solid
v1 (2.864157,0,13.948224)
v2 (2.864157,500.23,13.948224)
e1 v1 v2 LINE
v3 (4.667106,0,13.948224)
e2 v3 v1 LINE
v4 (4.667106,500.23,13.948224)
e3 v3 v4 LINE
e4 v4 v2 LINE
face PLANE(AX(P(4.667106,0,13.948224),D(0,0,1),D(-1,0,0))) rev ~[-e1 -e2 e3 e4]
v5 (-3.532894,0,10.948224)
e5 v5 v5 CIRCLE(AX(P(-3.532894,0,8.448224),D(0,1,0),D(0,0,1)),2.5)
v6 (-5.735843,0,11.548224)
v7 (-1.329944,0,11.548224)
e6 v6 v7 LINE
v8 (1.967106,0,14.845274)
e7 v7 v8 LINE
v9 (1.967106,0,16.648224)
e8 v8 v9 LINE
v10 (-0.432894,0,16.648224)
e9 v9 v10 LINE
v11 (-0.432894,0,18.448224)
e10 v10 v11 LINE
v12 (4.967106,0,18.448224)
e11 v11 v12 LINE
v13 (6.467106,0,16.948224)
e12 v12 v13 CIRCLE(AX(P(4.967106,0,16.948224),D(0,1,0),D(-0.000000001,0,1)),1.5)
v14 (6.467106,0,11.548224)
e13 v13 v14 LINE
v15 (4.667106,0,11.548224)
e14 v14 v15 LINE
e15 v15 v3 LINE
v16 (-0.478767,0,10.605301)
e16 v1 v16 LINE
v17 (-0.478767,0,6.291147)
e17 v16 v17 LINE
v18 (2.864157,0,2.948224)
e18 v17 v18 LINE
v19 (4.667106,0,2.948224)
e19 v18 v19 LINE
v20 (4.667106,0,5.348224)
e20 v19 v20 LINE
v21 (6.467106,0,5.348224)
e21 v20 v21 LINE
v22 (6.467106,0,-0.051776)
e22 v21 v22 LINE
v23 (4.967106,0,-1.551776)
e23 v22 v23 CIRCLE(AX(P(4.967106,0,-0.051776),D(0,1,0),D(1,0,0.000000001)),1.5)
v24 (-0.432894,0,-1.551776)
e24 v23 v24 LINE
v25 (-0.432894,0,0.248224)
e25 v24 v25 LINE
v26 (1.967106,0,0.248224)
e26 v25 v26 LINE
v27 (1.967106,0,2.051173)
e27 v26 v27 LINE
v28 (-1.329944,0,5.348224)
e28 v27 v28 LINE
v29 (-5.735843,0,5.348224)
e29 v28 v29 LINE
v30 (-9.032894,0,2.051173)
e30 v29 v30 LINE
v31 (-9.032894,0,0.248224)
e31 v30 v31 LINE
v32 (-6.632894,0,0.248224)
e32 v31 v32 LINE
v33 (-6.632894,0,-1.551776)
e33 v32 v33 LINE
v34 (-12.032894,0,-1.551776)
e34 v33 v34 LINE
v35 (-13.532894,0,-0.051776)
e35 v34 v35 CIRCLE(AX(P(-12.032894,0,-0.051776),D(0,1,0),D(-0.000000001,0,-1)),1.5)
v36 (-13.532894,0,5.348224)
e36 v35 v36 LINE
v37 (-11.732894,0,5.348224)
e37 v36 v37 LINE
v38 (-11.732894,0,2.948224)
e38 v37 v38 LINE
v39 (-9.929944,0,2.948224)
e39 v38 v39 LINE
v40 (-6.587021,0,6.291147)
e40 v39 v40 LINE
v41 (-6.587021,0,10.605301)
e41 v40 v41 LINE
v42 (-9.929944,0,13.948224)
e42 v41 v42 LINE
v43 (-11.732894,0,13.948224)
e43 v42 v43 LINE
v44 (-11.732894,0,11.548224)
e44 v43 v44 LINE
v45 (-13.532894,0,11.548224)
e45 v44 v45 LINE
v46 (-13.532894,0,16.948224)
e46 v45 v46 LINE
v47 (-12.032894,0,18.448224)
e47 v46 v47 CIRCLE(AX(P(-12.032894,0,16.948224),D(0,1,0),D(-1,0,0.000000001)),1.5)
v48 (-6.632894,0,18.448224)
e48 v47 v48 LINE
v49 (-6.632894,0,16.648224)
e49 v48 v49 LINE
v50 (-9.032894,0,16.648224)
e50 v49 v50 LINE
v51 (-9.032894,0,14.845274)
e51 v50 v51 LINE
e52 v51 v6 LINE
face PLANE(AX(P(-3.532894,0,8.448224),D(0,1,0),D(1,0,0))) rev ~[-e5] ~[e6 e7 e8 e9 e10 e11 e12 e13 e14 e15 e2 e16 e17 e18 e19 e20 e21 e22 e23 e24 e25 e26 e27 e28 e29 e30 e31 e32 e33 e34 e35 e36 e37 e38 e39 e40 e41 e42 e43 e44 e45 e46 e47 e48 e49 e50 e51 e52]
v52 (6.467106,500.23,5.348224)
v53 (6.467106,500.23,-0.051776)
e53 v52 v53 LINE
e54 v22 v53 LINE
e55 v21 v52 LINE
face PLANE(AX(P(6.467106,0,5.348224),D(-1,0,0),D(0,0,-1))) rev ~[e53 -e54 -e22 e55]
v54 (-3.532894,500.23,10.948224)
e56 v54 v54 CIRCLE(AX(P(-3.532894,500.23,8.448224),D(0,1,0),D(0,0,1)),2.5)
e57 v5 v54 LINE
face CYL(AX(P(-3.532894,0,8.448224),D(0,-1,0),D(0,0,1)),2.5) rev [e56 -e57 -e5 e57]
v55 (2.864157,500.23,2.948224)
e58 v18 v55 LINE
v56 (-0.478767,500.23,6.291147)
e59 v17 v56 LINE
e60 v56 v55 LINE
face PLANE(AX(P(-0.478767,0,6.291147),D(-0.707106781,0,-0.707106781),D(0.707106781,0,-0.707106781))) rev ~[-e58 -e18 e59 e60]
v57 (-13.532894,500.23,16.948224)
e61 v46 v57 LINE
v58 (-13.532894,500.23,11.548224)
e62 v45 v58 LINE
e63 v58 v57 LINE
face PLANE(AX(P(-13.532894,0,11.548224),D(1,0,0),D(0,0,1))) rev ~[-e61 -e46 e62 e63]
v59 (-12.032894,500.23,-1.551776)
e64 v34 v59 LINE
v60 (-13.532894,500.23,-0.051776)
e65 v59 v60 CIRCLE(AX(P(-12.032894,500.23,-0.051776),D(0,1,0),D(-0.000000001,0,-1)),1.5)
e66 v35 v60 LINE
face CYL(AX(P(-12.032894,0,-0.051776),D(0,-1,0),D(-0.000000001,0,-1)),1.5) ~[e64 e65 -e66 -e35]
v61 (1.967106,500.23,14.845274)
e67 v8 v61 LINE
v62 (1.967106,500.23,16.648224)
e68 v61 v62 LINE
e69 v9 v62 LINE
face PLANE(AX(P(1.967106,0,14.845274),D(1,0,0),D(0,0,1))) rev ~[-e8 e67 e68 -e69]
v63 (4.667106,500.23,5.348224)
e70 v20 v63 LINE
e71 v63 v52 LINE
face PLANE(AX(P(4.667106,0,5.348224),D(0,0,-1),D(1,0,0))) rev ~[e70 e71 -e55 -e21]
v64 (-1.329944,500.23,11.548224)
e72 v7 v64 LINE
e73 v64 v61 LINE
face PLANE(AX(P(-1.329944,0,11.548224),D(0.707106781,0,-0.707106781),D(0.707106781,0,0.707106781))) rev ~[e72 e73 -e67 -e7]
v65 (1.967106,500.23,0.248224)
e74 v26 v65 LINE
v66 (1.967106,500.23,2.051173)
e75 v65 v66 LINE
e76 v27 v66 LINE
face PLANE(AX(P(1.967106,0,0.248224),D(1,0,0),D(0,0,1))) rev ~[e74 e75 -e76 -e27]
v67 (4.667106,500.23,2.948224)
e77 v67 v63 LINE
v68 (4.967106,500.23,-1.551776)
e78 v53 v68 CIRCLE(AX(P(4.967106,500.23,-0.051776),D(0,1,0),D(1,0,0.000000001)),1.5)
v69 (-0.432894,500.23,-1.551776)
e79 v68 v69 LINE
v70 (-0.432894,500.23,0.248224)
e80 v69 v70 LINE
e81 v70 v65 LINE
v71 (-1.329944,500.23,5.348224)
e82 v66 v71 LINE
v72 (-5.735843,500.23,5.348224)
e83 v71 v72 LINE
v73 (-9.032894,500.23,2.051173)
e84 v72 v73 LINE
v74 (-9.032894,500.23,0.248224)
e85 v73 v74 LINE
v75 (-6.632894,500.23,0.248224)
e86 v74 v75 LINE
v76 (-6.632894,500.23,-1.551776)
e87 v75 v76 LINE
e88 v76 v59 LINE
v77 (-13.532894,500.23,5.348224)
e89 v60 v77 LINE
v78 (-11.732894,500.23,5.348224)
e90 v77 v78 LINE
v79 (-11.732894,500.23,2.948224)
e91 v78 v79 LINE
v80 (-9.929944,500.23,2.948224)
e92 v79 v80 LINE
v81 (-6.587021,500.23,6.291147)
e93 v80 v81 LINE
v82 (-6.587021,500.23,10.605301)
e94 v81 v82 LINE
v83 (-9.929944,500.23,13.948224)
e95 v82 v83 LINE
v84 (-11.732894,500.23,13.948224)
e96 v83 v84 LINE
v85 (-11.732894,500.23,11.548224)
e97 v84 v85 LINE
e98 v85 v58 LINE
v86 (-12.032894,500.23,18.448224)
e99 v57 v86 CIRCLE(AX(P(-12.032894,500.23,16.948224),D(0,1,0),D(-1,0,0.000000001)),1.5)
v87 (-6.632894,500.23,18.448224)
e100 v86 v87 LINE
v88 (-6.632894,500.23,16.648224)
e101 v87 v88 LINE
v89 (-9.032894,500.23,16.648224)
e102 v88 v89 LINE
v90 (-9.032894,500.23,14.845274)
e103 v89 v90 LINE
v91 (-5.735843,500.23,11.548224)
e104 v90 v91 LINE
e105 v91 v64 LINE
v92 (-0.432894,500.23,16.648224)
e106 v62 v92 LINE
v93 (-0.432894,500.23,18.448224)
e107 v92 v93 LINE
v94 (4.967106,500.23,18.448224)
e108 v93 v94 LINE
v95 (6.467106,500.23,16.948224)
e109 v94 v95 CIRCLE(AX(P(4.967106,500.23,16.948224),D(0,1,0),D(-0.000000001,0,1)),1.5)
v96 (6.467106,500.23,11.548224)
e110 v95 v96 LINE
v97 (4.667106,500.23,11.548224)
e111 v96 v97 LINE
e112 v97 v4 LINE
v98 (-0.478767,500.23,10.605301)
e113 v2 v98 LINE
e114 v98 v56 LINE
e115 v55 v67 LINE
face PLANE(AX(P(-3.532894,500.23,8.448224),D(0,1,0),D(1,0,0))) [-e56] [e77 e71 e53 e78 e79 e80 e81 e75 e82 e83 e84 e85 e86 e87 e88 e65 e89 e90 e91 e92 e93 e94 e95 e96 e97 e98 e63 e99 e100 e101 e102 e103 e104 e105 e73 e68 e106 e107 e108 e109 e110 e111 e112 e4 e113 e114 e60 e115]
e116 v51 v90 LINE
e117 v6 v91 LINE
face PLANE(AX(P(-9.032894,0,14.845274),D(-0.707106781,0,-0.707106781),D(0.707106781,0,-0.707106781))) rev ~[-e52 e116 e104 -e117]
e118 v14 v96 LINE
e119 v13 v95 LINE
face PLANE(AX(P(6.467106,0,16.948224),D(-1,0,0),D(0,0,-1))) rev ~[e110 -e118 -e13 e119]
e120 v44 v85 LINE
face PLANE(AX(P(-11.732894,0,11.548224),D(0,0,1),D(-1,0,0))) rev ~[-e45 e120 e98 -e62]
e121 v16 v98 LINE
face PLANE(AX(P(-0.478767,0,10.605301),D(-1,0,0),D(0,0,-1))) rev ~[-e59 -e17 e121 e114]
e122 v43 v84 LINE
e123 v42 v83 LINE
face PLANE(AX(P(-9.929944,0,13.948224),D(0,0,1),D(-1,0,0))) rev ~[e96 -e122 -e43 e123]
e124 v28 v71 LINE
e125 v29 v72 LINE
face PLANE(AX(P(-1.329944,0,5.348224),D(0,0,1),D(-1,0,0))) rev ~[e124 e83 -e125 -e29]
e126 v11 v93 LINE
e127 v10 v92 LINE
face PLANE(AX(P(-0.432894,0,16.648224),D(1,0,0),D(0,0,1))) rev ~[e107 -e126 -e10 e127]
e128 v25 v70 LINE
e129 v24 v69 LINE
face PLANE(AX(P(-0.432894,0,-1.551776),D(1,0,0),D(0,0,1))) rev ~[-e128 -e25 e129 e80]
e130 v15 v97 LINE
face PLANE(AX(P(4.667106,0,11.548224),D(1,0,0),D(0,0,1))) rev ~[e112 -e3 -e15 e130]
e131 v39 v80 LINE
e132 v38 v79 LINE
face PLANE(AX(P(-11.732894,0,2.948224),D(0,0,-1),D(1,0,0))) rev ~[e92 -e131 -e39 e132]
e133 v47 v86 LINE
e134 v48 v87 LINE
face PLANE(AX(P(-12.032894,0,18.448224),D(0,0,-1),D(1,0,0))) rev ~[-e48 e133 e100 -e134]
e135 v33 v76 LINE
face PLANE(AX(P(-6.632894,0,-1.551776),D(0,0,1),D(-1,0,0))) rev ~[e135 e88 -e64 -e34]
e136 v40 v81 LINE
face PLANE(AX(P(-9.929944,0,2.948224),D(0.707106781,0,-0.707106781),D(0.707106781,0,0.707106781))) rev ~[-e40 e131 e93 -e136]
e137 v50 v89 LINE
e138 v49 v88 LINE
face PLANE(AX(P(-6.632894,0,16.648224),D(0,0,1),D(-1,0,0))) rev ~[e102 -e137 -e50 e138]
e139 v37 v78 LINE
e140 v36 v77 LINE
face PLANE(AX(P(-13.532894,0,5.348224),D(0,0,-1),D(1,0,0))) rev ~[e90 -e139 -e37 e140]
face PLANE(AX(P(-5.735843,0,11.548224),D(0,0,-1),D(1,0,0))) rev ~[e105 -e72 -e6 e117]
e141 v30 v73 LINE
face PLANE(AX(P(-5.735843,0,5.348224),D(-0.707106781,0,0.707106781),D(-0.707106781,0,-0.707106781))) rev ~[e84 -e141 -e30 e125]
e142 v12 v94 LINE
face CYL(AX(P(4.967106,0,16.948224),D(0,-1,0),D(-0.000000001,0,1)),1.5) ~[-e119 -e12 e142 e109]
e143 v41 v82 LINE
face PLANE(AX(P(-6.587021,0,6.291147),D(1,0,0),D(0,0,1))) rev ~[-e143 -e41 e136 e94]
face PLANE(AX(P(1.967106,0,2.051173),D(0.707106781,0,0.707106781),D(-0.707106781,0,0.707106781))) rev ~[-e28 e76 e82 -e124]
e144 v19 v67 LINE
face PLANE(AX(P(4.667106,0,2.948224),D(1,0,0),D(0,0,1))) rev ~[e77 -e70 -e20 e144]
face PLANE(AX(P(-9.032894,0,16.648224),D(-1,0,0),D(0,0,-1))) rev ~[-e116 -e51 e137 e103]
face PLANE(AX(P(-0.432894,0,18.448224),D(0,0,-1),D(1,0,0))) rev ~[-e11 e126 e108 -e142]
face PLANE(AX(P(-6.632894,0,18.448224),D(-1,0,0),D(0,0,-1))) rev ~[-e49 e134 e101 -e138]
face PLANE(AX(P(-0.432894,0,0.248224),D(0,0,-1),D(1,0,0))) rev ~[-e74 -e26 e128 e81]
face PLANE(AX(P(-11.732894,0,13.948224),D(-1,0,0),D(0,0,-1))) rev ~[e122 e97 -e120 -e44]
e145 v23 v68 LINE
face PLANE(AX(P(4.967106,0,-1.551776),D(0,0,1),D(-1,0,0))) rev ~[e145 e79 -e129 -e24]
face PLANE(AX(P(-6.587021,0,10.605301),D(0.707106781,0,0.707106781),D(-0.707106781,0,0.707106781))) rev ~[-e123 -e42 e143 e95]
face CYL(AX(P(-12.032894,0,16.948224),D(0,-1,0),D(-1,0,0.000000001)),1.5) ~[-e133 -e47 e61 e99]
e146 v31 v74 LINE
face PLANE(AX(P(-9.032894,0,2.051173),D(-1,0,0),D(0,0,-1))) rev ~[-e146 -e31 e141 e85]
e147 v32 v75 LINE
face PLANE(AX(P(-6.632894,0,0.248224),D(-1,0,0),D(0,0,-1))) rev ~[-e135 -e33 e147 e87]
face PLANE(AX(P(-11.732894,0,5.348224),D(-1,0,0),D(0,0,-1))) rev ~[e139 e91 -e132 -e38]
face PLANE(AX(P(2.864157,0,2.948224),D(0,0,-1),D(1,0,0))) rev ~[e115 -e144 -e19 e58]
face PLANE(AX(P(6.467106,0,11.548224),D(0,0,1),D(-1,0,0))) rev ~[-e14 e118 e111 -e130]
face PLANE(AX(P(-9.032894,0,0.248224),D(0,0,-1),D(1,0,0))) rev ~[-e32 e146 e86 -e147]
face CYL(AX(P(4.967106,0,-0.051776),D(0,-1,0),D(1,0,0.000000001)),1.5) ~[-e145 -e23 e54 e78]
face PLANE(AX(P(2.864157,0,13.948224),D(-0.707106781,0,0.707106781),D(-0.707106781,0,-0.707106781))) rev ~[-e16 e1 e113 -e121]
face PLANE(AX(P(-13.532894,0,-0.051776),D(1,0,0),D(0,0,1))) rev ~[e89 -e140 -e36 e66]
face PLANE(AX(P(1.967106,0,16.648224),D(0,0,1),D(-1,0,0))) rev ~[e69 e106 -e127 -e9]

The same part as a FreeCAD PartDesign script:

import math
import FreeCAD as App
import Part
import Sketcher
from FreeCAD import Vector
Q = App.Units.Quantity

doc = App.newDocument("Part")
body = doc.addObject("PartDesign::Body", "Body")

# Sketch on XZ plane
sketch1 = body.newObject("Sketcher::SketchObject", "Sketch")
sketch1.AttachmentSupport = (doc.getObject("XZ_Plane"), [""])
sketch1.MapMode = "FlatFace"
sketch1.addGeometry([
    Part.LineSegment(Vector(-11.732894, 11.548224, 0), Vector(-13.532894, 11.548224, 0)),  # 0
    Part.LineSegment(Vector(-13.532894, 11.548224, 0), Vector(-13.532894, 16.948224, 0)),  # 1
    Part.ArcOfCircle(Part.Circle(Vector(-12.032894, 16.948224, 0), Vector(0, 0, 1), 1.5), math.radians(90), math.radians(180)),  # 2
    Part.LineSegment(Vector(-12.032894, 18.448224, 0), Vector(-6.632894, 18.448224, 0)),  # 3
    Part.LineSegment(Vector(-6.632894, 18.448224, 0), Vector(-6.632894, 16.648224, 0)),  # 4
    Part.LineSegment(Vector(-6.632894, 16.648224, 0), Vector(-9.032894, 16.648224, 0)),  # 5
    Part.LineSegment(Vector(-9.032894, 16.648224, 0), Vector(-9.032894, 14.845274, 0)),  # 6
    Part.LineSegment(Vector(-9.032894, 14.845274, 0), Vector(-5.735843, 11.548224, 0)),  # 7
    Part.LineSegment(Vector(-5.735843, 11.548224, 0), Vector(-1.329944, 11.548224, 0)),  # 8
    Part.LineSegment(Vector(-1.329944, 11.548224, 0), Vector(1.967106, 14.845274, 0)),  # 9
    Part.LineSegment(Vector(1.967106, 14.845274, 0), Vector(1.967106, 16.648224, 0)),  # 10
    Part.LineSegment(Vector(1.967106, 16.648224, 0), Vector(-0.432894, 16.648224, 0)),  # 11
    Part.LineSegment(Vector(-0.432894, 16.648224, 0), Vector(-0.432894, 18.448224, 0)),  # 12
    Part.LineSegment(Vector(-0.432894, 18.448224, 0), Vector(4.967106, 18.448224, 0)),  # 13
    Part.ArcOfCircle(Part.Circle(Vector(4.967106, 16.948224, 0), Vector(0, 0, 1), 1.5), math.radians(0), math.radians(90)),  # 14
    Part.LineSegment(Vector(6.467106, 16.948224, 0), Vector(6.467106, 11.548224, 0)),  # 15
    Part.LineSegment(Vector(6.467106, 11.548224, 0), Vector(4.667106, 11.548224, 0)),  # 16
    Part.LineSegment(Vector(4.667106, 11.548224, 0), Vector(4.667106, 13.948224, 0)),  # 17
    Part.LineSegment(Vector(4.667106, 13.948224, 0), Vector(2.864157, 13.948224, 0)),  # 18
    Part.LineSegment(Vector(2.864157, 13.948224, 0), Vector(-0.478767, 10.605301, 0)),  # 19
    Part.LineSegment(Vector(-0.478767, 10.605301, 0), Vector(-0.478767, 6.291147, 0)),  # 20
    Part.LineSegment(Vector(-0.478767, 6.291147, 0), Vector(2.864157, 2.948224, 0)),  # 21
    Part.LineSegment(Vector(2.864157, 2.948224, 0), Vector(4.667106, 2.948224, 0)),  # 22
    Part.LineSegment(Vector(4.667106, 2.948224, 0), Vector(4.667106, 5.348224, 0)),  # 23
    Part.LineSegment(Vector(4.667106, 5.348224, 0), Vector(6.467106, 5.348224, 0)),  # 24
    Part.LineSegment(Vector(6.467106, 5.348224, 0), Vector(6.467106, -0.051776, 0)),  # 25
    Part.ArcOfCircle(Part.Circle(Vector(4.967106, -0.051776, 0), Vector(0, 0, 1), 1.5), math.radians(-90), math.radians(0)),  # 26
    Part.LineSegment(Vector(4.967106, -1.551776, 0), Vector(-0.432894, -1.551776, 0)),  # 27
    Part.LineSegment(Vector(-0.432894, -1.551776, 0), Vector(-0.432894, 0.248224, 0)),  # 28
    Part.LineSegment(Vector(-0.432894, 0.248224, 0), Vector(1.967106, 0.248224, 0)),  # 29
    Part.LineSegment(Vector(1.967106, 0.248224, 0), Vector(1.967106, 2.051173, 0)),  # 30
    Part.LineSegment(Vector(1.967106, 2.051173, 0), Vector(-1.329944, 5.348224, 0)),  # 31
    Part.LineSegment(Vector(-1.329944, 5.348224, 0), Vector(-5.735843, 5.348224, 0)),  # 32
    Part.LineSegment(Vector(-5.735843, 5.348224, 0), Vector(-9.032894, 2.051173, 0)),  # 33
    Part.LineSegment(Vector(-9.032894, 2.051173, 0), Vector(-9.032894, 0.248224, 0)),  # 34
    Part.LineSegment(Vector(-9.032894, 0.248224, 0), Vector(-6.632894, 0.248224, 0)),  # 35
    Part.LineSegment(Vector(-6.632894, 0.248224, 0), Vector(-6.632894, -1.551776, 0)),  # 36
    Part.LineSegment(Vector(-6.632894, -1.551776, 0), Vector(-12.032894, -1.551776, 0)),  # 37
    Part.ArcOfCircle(Part.Circle(Vector(-12.032894, -0.051776, 0), Vector(0, 0, 1), 1.5), math.radians(-180), math.radians(-90)),  # 38
    Part.LineSegment(Vector(-13.532894, -0.051776, 0), Vector(-13.532894, 5.348224, 0)),  # 39
    Part.LineSegment(Vector(-13.532894, 5.348224, 0), Vector(-11.732894, 5.348224, 0)),  # 40
    Part.LineSegment(Vector(-11.732894, 5.348224, 0), Vector(-11.732894, 2.948224, 0)),  # 41
    Part.LineSegment(Vector(-11.732894, 2.948224, 0), Vector(-9.929944, 2.948224, 0)),  # 42
    Part.LineSegment(Vector(-9.929944, 2.948224, 0), Vector(-6.587021, 6.291147, 0)),  # 43
    Part.LineSegment(Vector(-6.587021, 6.291147, 0), Vector(-6.587021, 10.605301, 0)),  # 44
    Part.LineSegment(Vector(-6.587021, 10.605301, 0), Vector(-9.929944, 13.948224, 0)),  # 45
    Part.LineSegment(Vector(-9.929944, 13.948224, 0), Vector(-11.732894, 13.948224, 0)),  # 46
    Part.LineSegment(Vector(-11.732894, 13.948224, 0), Vector(-11.732894, 11.548224, 0)),  # 47
    Part.Circle(Vector(-3.532894, 8.448224, 0), Vector(0, 0, 1), 2.5),  # 48
], False)
sketch1.addConstraint([
    Sketcher.Constraint("Coincident", 0, 2, 1, 1),
    Sketcher.Constraint("Tangent", 1, 2, 2, 2),
    Sketcher.Constraint("Tangent", 2, 1, 3, 1),
    Sketcher.Constraint("Coincident", 3, 2, 4, 1),
    Sketcher.Constraint("Coincident", 4, 2, 5, 1),
    Sketcher.Constraint("Coincident", 5, 2, 6, 1),
    Sketcher.Constraint("Coincident", 6, 2, 7, 1),
    Sketcher.Constraint("Coincident", 7, 2, 8, 1),
    Sketcher.Constraint("Coincident", 8, 2, 9, 1),
    Sketcher.Constraint("Coincident", 9, 2, 10, 1),
    Sketcher.Constraint("Coincident", 10, 2, 11, 1),
    Sketcher.Constraint("Coincident", 11, 2, 12, 1),
    Sketcher.Constraint("Coincident", 12, 2, 13, 1),
    Sketcher.Constraint("Tangent", 13, 2, 14, 2),
    Sketcher.Constraint("Tangent", 14, 1, 15, 1),
    Sketcher.Constraint("Coincident", 15, 2, 16, 1),
    Sketcher.Constraint("Coincident", 16, 2, 17, 1),
    Sketcher.Constraint("Coincident", 17, 2, 18, 1),
    Sketcher.Constraint("Coincident", 18, 2, 19, 1),
    Sketcher.Constraint("Coincident", 19, 2, 20, 1),
    Sketcher.Constraint("Coincident", 20, 2, 21, 1),
    Sketcher.Constraint("Coincident", 21, 2, 22, 1),
    Sketcher.Constraint("Coincident", 22, 2, 23, 1),
    Sketcher.Constraint("Coincident", 23, 2, 24, 1),
    Sketcher.Constraint("Coincident", 24, 2, 25, 1),
    Sketcher.Constraint("Tangent", 25, 2, 26, 2),
    Sketcher.Constraint("Tangent", 26, 1, 27, 1),
    Sketcher.Constraint("Coincident", 27, 2, 28, 1),
    Sketcher.Constraint("Coincident", 28, 2, 29, 1),
    Sketcher.Constraint("Coincident", 29, 2, 30, 1),
    Sketcher.Constraint("Coincident", 30, 2, 31, 1),
    Sketcher.Constraint("Coincident", 31, 2, 32, 1),
    Sketcher.Constraint("Coincident", 32, 2, 33, 1),
    Sketcher.Constraint("Coincident", 33, 2, 34, 1),
    Sketcher.Constraint("Coincident", 34, 2, 35, 1),
    Sketcher.Constraint("Coincident", 35, 2, 36, 1),
    Sketcher.Constraint("Coincident", 36, 2, 37, 1),
    Sketcher.Constraint("Tangent", 37, 2, 38, 2),
    Sketcher.Constraint("Tangent", 38, 1, 39, 1),
    Sketcher.Constraint("Coincident", 39, 2, 40, 1),
    Sketcher.Constraint("Coincident", 40, 2, 41, 1),
    Sketcher.Constraint("Coincident", 41, 2, 42, 1),
    Sketcher.Constraint("Coincident", 42, 2, 43, 1),
    Sketcher.Constraint("Coincident", 43, 2, 44, 1),
    Sketcher.Constraint("Coincident", 44, 2, 45, 1),
    Sketcher.Constraint("Coincident", 45, 2, 46, 1),
    Sketcher.Constraint("Coincident", 46, 2, 47, 1),
    Sketcher.Constraint("Coincident", 47, 2, 0, 1),
    Sketcher.Constraint("Horizontal", 0),
    Sketcher.Constraint("Vertical", 1),
    Sketcher.Constraint("Horizontal", 3),
    Sketcher.Constraint("Vertical", 4),
    Sketcher.Constraint("Horizontal", 5),
    Sketcher.Constraint("Vertical", 6),
    Sketcher.Constraint("Horizontal", 8),
    Sketcher.Constraint("Vertical", 10),
    Sketcher.Constraint("Horizontal", 11),
    Sketcher.Constraint("Vertical", 12),
    Sketcher.Constraint("Horizontal", 13),
    Sketcher.Constraint("Vertical", 15),
    Sketcher.Constraint("Horizontal", 16),
    Sketcher.Constraint("Vertical", 17),
    Sketcher.Constraint("Horizontal", 18),
    Sketcher.Constraint("Vertical", 20),
    Sketcher.Constraint("Horizontal", 22),
    Sketcher.Constraint("Vertical", 23),
    Sketcher.Constraint("Horizontal", 24),
    Sketcher.Constraint("Vertical", 25),
    Sketcher.Constraint("Horizontal", 27),
    Sketcher.Constraint("Vertical", 28),
    Sketcher.Constraint("Horizontal", 29),
    Sketcher.Constraint("Vertical", 30),
    Sketcher.Constraint("Horizontal", 32),
    Sketcher.Constraint("Vertical", 34),
    Sketcher.Constraint("Horizontal", 35),
    Sketcher.Constraint("Vertical", 36),
    Sketcher.Constraint("Horizontal", 37),
    Sketcher.Constraint("Vertical", 39),
    Sketcher.Constraint("Horizontal", 40),
    Sketcher.Constraint("Vertical", 41),
    Sketcher.Constraint("Horizontal", 42),
    Sketcher.Constraint("Vertical", 44),
    Sketcher.Constraint("Horizontal", 46),
    Sketcher.Constraint("Vertical", 47),
    Sketcher.Constraint("Equal", 2, 14),
    Sketcher.Constraint("Equal", 14, 26),
    Sketcher.Constraint("Equal", 26, 38),
    Sketcher.Constraint("Perpendicular", 7, 9),
    Sketcher.Constraint("Parallel", 9, 19),
    Sketcher.Constraint("Perpendicular", 19, 21),
    Sketcher.Constraint("Parallel", 21, 31),
    Sketcher.Constraint("Perpendicular", 31, 33),
    Sketcher.Constraint("Parallel", 33, 43),
    Sketcher.Constraint("Perpendicular", 43, 45),
    Sketcher.Constraint("Horizontal", 2, 3, 14, 3),
    Sketcher.Constraint("Horizontal", 26, 3, 38, 3),
    Sketcher.Constraint("Horizontal", 0, 2, 7, 2),
    Sketcher.Constraint("Horizontal", 6, 2, 9, 2),
    Sketcher.Constraint("Horizontal", 5, 2, 10, 2),
    Sketcher.Constraint("Horizontal", 8, 2, 15, 2),
    Sketcher.Constraint("Horizontal", 24, 2, 31, 2),
    Sketcher.Constraint("Horizontal", 30, 2, 33, 2),
    Sketcher.Constraint("Horizontal", 29, 2, 34, 2),
    Sketcher.Constraint("Horizontal", 32, 2, 39, 2),
    Sketcher.Constraint("Horizontal", 22, 2, 41, 2),
    Sketcher.Constraint("Horizontal", 20, 2, 43, 2),
    Sketcher.Constraint("Horizontal", 19, 2, 44, 2),
    Sketcher.Constraint("Horizontal", 18, 2, 45, 2),
    Sketcher.Constraint("Vertical", 14, 3, 26, 3),
    Sketcher.Constraint("Vertical", 2, 3, 38, 3),
    Sketcher.Constraint("Vertical", 18, 2, 21, 2),
    Sketcher.Constraint("Vertical", 17, 2, 22, 2),
    Sketcher.Constraint("Vertical", 12, 2, 27, 2),
    Sketcher.Constraint("Vertical", 10, 2, 29, 2),
    Sketcher.Constraint("Vertical", 8, 2, 31, 2),
    Sketcher.Constraint("Vertical", 7, 2, 32, 2),
    Sketcher.Constraint("Vertical", 6, 2, 33, 2),
    Sketcher.Constraint("Vertical", 4, 2, 35, 2),
    Sketcher.Constraint("Vertical", 41, 2, 46, 2),
    Sketcher.Constraint("Equal", 5, 11),
    Sketcher.Constraint("Equal", 3, 13),
    Sketcher.Constraint("Equal", 0, 16),
    Sketcher.Constraint("Equal", 22, 42),
    Sketcher.Constraint("Equal", 37, 1),
    Sketcher.Constraint("Equal", 40, 4),
    Sketcher.Constraint("Equal", 46, 6),
    Sketcher.Constraint("Equal", 35, 17),
    Sketcher.Constraint("Equal", 17, 23),
    Sketcher.Constraint("Equal", 15, 25),
    Sketcher.Constraint("Equal", 12, 28),
    Sketcher.Constraint("Diameter", 48, Q("5 mm")),
    Sketcher.Constraint("Radius", 2, Q("1.5 mm")),
    Sketcher.Constraint("DistanceX", 0, 2, 0, 1, Q("1.8 mm")),
    Sketcher.Constraint("DistanceX", 3, 1, 3, 2, Q("5.4 mm")),
    Sketcher.Constraint("DistanceX", 5, 2, 5, 1, Q("2.4 mm")),
    Sketcher.Constraint("DistanceX", 2, 3, 14, 3, Q("17 mm")),
    Sketcher.Constraint("DistanceY", 26, 3, 14, 3, Q("17 mm")),
    Sketcher.Constraint("DistanceX", 0, 2, 48, 3, Q("10 mm")),
    Sketcher.Constraint("DistanceY", 48, 3, 2, 1, Q("10 mm")),
    Sketcher.Constraint("DistanceX", 8, 1, 8, 2, Q("4.4059 mm")),
    Sketcher.Constraint("DistanceY", -1, 1, 19, 2, Q("10.605301 mm")),
    Sketcher.Constraint("DistanceY", 20, 2, 20, 1, Q("4.314154 mm")),
    Sketcher.Constraint("DistanceX", 43, 2, -1, 1, Q("6.587021 mm")),
])
pad1 = body.newObject("PartDesign::Pad", "Pad")
pad1.Profile = sketch1
pad1.Length = 500.23
pad1.Reversed = True

doc.recompute()
